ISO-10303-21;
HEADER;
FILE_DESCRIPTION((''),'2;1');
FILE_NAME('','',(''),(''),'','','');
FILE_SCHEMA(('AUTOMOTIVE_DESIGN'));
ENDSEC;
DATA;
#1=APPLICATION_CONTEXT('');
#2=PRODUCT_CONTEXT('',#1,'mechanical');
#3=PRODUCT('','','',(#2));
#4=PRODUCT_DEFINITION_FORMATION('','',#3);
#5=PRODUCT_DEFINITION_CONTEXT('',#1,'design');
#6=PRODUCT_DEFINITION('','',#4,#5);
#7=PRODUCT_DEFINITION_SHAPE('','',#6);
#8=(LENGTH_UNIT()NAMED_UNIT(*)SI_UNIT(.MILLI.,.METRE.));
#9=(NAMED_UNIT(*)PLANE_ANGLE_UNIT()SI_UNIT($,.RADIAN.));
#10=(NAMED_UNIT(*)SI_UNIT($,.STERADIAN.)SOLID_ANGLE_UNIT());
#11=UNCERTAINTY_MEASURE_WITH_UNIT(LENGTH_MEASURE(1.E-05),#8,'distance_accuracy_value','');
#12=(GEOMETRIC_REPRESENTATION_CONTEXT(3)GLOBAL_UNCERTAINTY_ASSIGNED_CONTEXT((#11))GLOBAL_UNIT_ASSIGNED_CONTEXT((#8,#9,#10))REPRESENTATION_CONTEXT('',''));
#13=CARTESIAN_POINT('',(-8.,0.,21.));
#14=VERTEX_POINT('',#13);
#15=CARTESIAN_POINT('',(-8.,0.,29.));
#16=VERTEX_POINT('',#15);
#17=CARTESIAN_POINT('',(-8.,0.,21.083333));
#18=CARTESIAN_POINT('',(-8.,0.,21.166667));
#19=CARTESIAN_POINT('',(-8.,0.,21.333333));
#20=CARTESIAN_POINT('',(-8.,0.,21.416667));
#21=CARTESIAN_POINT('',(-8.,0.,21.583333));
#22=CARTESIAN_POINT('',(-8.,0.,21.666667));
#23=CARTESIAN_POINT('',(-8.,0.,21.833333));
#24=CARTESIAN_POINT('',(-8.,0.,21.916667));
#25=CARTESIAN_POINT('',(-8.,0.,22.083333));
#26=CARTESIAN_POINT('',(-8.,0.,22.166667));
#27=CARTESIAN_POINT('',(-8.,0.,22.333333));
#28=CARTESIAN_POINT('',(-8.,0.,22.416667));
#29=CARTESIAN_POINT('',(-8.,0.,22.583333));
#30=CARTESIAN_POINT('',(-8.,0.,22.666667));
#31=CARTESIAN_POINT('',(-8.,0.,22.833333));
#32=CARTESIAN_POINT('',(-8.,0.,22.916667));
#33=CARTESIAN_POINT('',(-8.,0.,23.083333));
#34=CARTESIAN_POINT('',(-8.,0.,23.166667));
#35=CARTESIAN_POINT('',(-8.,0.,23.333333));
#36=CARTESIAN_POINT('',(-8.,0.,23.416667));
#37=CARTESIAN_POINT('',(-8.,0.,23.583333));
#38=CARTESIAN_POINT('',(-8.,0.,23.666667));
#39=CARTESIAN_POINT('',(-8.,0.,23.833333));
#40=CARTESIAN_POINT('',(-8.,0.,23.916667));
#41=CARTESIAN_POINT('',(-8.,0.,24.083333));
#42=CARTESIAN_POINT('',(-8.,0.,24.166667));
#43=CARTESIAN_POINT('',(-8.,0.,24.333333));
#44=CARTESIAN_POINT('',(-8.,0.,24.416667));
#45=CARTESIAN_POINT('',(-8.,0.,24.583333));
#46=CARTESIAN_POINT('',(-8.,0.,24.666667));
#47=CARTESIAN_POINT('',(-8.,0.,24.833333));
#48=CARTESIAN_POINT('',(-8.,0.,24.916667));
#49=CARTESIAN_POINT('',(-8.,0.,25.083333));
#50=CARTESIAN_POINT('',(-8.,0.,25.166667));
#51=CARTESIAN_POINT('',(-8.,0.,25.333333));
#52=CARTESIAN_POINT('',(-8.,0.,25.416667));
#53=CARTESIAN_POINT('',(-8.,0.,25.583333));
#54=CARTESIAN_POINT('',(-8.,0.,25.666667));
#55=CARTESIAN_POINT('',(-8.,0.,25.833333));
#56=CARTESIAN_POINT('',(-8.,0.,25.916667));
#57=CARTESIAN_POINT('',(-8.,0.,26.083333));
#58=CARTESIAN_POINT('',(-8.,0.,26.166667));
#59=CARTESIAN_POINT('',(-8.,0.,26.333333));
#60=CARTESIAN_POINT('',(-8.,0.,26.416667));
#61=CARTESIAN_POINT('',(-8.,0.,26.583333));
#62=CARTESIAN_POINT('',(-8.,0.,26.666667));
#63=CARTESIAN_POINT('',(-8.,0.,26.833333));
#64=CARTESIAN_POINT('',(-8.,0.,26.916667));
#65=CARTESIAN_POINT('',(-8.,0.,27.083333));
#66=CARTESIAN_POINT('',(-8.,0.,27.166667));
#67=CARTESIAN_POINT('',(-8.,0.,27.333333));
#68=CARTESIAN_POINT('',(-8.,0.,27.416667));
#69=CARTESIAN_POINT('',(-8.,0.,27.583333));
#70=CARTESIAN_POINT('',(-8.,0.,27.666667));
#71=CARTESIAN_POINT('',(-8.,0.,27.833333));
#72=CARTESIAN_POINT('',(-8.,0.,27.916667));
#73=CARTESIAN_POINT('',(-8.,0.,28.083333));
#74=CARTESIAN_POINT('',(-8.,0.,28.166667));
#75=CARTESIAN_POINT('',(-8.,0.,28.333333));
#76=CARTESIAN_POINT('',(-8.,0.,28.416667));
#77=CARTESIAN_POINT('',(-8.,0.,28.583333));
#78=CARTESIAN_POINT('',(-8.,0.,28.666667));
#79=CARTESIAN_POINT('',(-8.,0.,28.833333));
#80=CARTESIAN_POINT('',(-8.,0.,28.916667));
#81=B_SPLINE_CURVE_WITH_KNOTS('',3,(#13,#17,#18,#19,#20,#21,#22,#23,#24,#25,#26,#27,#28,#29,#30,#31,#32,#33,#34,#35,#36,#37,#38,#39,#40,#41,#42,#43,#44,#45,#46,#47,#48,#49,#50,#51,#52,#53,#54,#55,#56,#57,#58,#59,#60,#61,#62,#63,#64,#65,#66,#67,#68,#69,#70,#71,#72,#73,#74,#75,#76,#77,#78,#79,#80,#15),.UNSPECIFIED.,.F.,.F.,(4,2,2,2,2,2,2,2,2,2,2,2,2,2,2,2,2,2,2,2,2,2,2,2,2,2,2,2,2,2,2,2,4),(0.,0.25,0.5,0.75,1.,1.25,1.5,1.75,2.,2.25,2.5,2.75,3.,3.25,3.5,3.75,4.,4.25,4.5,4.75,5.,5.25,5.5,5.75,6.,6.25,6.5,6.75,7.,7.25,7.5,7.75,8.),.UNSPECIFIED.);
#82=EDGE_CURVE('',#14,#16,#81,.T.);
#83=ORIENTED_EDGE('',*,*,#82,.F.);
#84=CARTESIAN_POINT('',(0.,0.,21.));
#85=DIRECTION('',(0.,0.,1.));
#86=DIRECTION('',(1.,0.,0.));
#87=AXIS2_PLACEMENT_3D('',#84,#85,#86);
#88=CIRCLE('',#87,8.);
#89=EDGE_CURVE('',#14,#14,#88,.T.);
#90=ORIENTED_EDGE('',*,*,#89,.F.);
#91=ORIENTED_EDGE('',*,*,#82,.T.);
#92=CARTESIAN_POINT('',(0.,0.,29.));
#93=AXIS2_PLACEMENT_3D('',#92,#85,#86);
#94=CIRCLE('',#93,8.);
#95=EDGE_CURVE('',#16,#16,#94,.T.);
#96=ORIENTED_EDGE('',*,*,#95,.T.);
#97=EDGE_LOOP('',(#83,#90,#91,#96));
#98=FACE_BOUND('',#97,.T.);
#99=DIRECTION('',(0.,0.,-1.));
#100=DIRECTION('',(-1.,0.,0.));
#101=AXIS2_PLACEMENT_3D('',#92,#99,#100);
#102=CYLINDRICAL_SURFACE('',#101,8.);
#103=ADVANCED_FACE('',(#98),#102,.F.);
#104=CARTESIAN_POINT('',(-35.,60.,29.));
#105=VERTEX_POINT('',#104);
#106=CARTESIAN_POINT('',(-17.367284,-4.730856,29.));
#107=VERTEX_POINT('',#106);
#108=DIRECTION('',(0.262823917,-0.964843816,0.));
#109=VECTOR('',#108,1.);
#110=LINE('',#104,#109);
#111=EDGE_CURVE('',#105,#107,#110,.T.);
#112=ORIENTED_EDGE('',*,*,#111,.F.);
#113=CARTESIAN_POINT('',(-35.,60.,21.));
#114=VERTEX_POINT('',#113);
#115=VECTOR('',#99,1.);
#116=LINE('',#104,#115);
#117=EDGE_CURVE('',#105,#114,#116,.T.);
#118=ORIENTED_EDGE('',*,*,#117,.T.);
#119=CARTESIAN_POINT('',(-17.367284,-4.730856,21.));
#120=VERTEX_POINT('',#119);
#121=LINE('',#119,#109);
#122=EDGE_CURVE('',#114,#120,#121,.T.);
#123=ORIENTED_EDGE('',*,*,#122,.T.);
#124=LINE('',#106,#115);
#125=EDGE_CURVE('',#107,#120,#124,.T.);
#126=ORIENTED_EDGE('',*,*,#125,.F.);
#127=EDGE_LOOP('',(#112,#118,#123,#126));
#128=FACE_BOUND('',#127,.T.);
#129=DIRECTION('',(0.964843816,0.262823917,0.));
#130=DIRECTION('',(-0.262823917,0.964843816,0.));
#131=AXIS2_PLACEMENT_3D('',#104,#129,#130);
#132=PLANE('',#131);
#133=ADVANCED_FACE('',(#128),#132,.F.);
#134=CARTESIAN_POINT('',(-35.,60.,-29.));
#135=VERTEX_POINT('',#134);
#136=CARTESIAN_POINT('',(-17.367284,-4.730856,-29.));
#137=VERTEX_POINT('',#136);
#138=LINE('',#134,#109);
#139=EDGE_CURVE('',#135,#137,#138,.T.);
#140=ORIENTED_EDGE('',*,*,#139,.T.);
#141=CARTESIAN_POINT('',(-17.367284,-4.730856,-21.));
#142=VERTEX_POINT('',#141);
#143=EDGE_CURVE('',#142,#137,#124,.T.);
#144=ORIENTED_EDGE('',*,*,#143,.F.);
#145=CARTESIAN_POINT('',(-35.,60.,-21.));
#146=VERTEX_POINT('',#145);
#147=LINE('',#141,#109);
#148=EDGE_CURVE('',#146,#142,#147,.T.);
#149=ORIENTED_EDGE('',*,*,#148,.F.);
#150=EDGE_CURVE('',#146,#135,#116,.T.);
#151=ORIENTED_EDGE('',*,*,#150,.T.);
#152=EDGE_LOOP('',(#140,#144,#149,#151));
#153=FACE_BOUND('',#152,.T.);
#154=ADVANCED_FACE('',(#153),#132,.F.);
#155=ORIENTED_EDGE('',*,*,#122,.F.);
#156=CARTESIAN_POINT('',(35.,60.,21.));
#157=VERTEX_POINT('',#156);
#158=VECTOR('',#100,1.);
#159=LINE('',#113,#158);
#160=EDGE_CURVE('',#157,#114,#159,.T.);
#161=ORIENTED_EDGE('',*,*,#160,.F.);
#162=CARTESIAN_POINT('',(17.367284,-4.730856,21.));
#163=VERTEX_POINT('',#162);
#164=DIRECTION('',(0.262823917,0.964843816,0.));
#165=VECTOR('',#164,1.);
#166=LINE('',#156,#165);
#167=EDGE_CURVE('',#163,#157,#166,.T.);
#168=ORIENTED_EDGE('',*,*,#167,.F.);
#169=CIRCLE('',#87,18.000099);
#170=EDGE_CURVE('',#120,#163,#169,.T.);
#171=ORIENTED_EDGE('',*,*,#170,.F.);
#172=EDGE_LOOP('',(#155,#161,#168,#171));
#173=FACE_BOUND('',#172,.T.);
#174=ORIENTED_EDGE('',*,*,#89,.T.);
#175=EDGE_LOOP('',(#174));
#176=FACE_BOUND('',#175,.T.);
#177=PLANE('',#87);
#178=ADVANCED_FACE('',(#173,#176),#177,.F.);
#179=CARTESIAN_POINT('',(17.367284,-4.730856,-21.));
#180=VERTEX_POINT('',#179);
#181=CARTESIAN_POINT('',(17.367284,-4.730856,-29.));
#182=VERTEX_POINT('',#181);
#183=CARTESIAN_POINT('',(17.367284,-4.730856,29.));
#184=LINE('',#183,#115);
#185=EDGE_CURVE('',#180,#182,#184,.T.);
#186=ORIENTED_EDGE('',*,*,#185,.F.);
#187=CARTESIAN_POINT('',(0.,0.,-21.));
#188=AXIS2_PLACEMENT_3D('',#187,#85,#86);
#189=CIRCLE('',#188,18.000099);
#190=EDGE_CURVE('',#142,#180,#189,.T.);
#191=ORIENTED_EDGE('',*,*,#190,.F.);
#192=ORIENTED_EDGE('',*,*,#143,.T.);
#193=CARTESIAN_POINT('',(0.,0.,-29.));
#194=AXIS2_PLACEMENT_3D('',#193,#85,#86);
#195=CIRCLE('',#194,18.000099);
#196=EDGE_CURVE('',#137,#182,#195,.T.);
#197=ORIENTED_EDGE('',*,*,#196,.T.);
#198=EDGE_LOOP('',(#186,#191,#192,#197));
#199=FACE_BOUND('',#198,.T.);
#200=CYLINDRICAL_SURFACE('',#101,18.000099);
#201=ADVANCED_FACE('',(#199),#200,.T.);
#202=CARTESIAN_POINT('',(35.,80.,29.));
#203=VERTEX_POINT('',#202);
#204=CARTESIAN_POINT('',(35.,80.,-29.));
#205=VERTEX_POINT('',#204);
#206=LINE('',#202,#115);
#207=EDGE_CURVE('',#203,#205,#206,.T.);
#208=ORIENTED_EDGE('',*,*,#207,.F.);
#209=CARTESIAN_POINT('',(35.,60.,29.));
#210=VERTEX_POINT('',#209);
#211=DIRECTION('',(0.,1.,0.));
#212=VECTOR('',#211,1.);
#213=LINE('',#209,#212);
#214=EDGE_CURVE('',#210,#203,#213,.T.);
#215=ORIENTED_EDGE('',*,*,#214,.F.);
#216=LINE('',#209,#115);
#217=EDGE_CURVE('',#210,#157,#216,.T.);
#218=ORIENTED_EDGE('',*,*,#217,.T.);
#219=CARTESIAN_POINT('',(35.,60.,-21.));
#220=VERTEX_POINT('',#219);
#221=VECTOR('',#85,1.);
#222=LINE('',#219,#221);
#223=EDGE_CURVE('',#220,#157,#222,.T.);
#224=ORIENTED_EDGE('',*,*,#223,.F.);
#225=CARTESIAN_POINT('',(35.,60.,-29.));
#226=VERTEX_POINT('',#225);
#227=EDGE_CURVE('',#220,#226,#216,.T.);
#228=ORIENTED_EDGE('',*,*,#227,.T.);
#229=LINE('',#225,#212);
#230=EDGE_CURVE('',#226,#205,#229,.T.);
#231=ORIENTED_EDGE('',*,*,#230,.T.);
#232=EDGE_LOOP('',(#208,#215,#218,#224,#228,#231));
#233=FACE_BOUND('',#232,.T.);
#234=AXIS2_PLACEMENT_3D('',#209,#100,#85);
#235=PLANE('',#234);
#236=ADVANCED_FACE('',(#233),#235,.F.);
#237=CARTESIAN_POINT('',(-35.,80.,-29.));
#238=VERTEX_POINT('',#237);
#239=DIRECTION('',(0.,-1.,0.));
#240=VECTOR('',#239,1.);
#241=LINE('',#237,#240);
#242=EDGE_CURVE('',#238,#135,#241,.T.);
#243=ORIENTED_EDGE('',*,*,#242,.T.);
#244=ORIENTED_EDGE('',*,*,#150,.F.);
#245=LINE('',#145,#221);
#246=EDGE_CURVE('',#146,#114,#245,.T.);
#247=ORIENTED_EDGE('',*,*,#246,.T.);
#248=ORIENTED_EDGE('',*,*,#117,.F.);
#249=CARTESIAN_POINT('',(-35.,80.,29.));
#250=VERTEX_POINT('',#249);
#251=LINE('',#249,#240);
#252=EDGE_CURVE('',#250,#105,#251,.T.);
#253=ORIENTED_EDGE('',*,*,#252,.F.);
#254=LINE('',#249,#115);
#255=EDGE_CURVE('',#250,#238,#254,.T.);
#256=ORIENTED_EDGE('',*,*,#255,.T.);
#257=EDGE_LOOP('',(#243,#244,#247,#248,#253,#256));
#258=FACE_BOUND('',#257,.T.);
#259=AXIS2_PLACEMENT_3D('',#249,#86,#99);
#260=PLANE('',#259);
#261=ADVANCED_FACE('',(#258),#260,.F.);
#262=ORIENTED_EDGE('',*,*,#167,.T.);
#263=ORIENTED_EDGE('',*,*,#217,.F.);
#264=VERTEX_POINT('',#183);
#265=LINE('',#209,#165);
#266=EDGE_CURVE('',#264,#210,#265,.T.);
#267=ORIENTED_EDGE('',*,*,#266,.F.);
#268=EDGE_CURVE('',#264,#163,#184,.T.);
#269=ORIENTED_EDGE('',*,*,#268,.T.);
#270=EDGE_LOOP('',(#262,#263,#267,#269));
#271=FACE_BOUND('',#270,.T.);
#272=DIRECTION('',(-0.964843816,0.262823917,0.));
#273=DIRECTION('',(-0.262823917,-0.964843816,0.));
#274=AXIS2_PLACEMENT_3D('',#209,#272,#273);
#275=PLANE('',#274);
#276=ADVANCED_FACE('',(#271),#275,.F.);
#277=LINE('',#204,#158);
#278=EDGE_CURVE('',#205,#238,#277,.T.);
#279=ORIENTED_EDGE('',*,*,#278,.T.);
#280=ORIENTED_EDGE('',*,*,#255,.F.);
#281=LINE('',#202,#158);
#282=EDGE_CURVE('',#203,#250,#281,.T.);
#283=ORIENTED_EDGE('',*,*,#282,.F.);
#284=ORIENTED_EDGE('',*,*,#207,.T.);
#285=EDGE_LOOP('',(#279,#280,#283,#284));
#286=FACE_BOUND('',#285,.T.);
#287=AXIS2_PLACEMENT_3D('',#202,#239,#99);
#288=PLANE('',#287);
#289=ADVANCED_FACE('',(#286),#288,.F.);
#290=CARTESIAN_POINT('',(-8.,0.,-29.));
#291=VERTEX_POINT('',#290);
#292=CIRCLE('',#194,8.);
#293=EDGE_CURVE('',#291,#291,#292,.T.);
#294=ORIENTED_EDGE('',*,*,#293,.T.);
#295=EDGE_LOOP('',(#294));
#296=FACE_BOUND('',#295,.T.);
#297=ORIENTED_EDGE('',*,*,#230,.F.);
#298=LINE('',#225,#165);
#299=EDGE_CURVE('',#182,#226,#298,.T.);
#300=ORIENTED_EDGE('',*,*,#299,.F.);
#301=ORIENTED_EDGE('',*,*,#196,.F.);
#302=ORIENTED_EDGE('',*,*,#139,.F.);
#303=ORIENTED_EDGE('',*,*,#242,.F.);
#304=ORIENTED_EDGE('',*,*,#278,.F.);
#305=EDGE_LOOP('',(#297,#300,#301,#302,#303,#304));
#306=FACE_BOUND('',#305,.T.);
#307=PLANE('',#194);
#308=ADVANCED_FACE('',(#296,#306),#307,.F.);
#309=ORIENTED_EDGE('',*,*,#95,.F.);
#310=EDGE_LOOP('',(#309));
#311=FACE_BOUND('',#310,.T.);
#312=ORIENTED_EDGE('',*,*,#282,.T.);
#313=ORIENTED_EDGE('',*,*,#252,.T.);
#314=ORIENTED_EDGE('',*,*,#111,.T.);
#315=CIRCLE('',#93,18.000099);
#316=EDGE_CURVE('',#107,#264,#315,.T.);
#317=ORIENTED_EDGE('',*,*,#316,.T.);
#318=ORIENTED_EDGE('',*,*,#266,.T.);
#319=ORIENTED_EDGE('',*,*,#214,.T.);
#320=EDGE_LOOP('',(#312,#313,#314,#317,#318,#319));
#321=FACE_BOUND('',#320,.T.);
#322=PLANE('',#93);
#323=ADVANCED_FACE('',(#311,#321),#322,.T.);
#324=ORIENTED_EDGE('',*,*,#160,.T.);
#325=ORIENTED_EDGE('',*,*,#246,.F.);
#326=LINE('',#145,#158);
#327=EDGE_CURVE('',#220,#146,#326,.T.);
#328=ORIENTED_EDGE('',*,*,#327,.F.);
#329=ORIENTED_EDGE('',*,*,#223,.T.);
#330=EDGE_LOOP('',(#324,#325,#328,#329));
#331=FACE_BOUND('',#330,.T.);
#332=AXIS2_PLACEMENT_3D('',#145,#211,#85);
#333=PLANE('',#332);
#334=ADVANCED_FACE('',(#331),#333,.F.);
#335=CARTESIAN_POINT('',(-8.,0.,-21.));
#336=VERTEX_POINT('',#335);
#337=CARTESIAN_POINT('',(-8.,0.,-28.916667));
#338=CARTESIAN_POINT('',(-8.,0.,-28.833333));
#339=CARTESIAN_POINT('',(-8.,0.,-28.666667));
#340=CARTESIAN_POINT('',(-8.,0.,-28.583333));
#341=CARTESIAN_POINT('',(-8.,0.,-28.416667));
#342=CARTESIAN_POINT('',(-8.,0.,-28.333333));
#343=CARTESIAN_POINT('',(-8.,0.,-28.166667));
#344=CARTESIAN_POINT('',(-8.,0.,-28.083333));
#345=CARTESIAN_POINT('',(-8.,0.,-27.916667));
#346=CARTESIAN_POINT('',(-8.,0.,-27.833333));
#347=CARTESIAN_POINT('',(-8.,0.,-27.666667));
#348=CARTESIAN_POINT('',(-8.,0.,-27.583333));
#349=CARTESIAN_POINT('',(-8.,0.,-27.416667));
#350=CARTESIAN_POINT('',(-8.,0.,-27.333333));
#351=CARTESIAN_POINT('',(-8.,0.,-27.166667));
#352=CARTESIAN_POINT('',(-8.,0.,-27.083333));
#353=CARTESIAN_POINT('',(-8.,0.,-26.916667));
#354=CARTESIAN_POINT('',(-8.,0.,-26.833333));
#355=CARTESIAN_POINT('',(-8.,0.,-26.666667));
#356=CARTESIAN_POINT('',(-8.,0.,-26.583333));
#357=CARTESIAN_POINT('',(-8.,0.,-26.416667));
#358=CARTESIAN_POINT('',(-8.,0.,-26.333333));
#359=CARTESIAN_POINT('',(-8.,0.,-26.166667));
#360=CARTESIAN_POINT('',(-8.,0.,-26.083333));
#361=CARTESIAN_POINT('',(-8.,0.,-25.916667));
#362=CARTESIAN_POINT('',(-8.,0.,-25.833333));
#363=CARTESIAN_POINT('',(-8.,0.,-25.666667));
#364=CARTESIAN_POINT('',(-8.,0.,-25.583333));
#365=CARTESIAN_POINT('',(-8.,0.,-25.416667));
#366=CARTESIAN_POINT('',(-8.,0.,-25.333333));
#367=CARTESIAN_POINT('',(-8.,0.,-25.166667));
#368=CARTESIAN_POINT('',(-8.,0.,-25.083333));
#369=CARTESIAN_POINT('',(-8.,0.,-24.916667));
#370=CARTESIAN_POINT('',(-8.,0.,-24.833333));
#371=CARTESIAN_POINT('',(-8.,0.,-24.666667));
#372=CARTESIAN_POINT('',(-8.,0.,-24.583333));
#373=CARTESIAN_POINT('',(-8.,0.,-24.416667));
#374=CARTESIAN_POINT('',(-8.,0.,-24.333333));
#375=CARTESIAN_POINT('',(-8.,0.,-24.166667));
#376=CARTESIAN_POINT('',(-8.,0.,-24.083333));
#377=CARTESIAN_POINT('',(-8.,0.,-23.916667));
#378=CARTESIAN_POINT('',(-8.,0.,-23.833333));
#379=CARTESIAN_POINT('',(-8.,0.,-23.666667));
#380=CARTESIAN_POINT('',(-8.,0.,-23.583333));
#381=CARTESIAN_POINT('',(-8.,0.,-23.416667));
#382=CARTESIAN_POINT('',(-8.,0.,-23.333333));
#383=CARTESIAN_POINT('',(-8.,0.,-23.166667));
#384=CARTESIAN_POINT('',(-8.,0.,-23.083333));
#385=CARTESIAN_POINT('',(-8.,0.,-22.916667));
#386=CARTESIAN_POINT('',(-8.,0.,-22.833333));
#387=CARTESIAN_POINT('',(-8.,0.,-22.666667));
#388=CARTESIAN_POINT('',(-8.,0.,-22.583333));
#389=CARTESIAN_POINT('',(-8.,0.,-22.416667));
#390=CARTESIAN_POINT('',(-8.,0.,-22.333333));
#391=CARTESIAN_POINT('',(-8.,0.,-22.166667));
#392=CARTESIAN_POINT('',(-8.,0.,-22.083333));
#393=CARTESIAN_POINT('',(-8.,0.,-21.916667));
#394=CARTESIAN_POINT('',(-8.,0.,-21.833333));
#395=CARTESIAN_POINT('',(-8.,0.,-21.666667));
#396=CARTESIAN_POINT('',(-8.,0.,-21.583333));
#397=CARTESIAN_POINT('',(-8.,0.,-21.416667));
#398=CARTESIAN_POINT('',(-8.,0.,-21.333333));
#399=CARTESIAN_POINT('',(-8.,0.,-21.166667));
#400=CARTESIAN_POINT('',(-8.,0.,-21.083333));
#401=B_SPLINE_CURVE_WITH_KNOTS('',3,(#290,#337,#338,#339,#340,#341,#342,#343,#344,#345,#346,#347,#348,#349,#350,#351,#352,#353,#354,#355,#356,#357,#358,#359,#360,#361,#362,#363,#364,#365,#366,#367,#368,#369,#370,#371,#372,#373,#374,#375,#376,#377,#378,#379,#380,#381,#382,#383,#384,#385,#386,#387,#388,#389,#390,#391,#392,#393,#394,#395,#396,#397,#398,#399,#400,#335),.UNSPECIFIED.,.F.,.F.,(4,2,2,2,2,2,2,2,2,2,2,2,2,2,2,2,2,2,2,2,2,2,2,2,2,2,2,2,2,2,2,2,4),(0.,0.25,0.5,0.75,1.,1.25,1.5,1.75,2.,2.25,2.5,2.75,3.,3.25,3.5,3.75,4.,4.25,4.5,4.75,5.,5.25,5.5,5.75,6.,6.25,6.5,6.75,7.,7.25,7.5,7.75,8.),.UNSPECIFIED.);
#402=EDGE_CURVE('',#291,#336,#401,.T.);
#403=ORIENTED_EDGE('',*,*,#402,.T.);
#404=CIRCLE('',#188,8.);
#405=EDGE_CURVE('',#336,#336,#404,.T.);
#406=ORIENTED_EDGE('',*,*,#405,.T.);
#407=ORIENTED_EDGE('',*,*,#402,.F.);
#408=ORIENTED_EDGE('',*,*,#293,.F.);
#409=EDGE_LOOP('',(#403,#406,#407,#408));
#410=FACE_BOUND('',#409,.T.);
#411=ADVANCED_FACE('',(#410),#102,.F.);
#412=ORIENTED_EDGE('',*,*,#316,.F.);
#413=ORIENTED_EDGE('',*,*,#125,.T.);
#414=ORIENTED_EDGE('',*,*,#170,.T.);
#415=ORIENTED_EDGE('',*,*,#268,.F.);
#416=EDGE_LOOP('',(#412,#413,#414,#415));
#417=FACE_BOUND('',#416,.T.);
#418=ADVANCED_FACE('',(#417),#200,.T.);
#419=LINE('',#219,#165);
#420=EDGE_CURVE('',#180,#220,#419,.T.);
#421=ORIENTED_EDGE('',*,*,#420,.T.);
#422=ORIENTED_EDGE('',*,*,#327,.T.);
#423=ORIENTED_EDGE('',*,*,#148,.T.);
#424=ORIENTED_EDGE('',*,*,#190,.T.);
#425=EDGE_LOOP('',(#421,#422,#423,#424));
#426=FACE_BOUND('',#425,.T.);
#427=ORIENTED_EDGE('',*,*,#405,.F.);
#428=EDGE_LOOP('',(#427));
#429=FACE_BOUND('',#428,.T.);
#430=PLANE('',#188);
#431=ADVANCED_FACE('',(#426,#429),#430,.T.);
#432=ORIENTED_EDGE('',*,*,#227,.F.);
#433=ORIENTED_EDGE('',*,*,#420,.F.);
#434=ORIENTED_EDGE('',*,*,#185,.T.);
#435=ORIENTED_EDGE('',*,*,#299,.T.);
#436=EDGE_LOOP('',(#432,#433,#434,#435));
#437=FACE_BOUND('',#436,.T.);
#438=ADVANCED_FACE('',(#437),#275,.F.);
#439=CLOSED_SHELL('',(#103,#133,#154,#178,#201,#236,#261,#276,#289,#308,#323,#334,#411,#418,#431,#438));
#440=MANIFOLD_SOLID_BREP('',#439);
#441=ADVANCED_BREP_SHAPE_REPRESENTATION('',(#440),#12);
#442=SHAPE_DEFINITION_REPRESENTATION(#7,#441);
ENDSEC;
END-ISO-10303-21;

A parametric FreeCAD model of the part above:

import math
import FreeCAD as App
import Part
import Sketcher

V = App.Vector

doc = App.newDocument("Part")
body = doc.addObject("PartDesign::Body", "Body")

sketch1 = doc.addObject("Sketcher::SketchObject", "Sketch")
body.addObject(sketch1)
sketch1.AttachmentSupport = (doc.XY_Plane, [""])
sketch1.MapMode = "FlatFace"
sketch1.addGeometry(Part.LineSegment(V(17, -5, 0), V(35, 60, 0)), False)
sketch1.addGeometry(Part.LineSegment(V(35, 60, 0), V(35, 80, 0)), False)
sketch1.addGeometry(Part.LineSegment(V(35, 80, 0), V(-35, 80, 0)), False)
sketch1.addGeometry(Part.LineSegment(V(-35, 80, 0), V(-35, 60, 0)), False)
sketch1.addGeometry(Part.LineSegment(V(-35, 60, 0), V(-17, -5, 0)), False)
sketch1.addGeometry(Part.ArcOfCircle(Part.Circle(V(0, 0, 0), V(0, 0, 1), 18), math.radians(-165), math.radians(-15)), False)
sketch1.addGeometry(Part.Circle(V(0, 0, 0), V(0, 0, 1), 8), False)
sketch1.addConstraint(Sketcher.Constraint("Coincident", 0, 2, 1, 1))
sketch1.addConstraint(Sketcher.Constraint("Coincident", 1, 2, 2, 1))
sketch1.addConstraint(Sketcher.Constraint("Coincident", 2, 2, 3, 1))
sketch1.addConstraint(Sketcher.Constraint("Coincident", 3, 2, 4, 1))
sketch1.addConstraint(Sketcher.Constraint("Tangent", 4, 2, 5, 1))
sketch1.addConstraint(Sketcher.Constraint("Tangent", 5, 2, 0, 1))
sketch1.addConstraint(Sketcher.Constraint("Vertical", 1))
sketch1.addConstraint(Sketcher.Constraint("Horizontal", 2))
sketch1.addConstraint(Sketcher.Constraint("Vertical", 3))
sketch1.addConstraint(Sketcher.Constraint("Coincident", 5, 3, -1, 1))
sketch1.addConstraint(Sketcher.Constraint("Coincident", 6, 3, -1, 1))
sketch1.addConstraint(Sketcher.Constraint("Symmetric", 0, 2, 3, 2, -2))
sketch1.addConstraint(Sketcher.Constraint("Diameter", 6, 16.0))
sketch1.addConstraint(Sketcher.Constraint("DistanceX", 2, 2, 2, 1, 70.0))
sketch1.addConstraint(Sketcher.Constraint("DistanceY", 1, 1, 1, 2, 20.0))
sketch1.addConstraint(Sketcher.Constraint("DistanceY", -1, 1, 0, 2, 60.0))
sketch1.addConstraint(Sketcher.Constraint("Radius", 5, 18.000099))
pad1 = doc.addObject("PartDesign::Pad", "Pad")
body.addObject(pad1)
pad1.Profile = sketch1
pad1.Length = 58
pad1.Midplane = True

sketch2 = doc.addObject("Sketcher::SketchObject", "Sketch001")
body.addObject(sketch2)
sketch2.AttachmentSupport = (doc.XY_Plane, [""])
sketch2.MapMode = "FlatFace"
sketch2.addGeometry(Part.LineSegment(V(35, 60, 0), V(-35, 60, 0)), False)
sketch2.addGeometry(Part.LineSegment(V(-35, 60, 0), V(-17, -5, 0)), False)
sketch2.addGeometry(Part.ArcOfCircle(Part.Circle(V(0, 0, 0), V(0, 0, 1), 18), math.radians(-165), math.radians(-15)), False)
sketch2.addGeometry(Part.LineSegment(V(17, -5, 0), V(35, 60, 0)), False)
sketch2.addConstraint(Sketcher.Constraint("Coincident", 0, 2, 1, 1))
sketch2.addConstraint(Sketcher.Constraint("Tangent", 1, 2, 2, 1))
sketch2.addConstraint(Sketcher.Constraint("Tangent", 2, 2, 3, 1))
sketch2.addConstraint(Sketcher.Constraint("Coincident", 3, 2, 0, 1))
sketch2.addConstraint(Sketcher.Constraint("Horizontal", 0))
sketch2.addConstraint(Sketcher.Constraint("Coincident", 2, 3, -1, 1))
sketch2.addConstraint(Sketcher.Constraint("Horizontal", 1, 2, 2, 2))
sketch2.addConstraint(Sketcher.Constraint("DistanceX", 0, 2, 0, 1, 70.0))
sketch2.addConstraint(Sketcher.Constraint("DistanceY", -1, 1, 0, 2, 60.0))
sketch2.addConstraint(Sketcher.Constraint("Radius", 2, 18.000099))
pocket1 = doc.addObject("PartDesign::Pocket", "Pocket")
body.addObject(pocket1)
pocket1.Profile = sketch2
pocket1.Length = 42
pocket1.Midplane = True

doc.recompute()
